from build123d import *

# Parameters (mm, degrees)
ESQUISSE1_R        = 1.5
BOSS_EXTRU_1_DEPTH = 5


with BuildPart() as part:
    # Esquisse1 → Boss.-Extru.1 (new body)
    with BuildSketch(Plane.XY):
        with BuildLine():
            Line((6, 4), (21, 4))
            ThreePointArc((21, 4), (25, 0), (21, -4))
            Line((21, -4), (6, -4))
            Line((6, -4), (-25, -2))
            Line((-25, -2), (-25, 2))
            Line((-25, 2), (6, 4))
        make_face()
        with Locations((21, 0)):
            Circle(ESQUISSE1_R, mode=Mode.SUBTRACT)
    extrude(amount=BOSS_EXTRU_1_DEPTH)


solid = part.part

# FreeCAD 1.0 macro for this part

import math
import FreeCAD as App
import Part
import Sketcher

doc = App.newDocument("Part")
params = doc.addObject("Spreadsheet::Sheet", "Params")
for row, (alias, value) in enumerate([
    ("sketch1_diameter", "3 mm"),
    ("sketch1_radius", "4 mm"),
    ("sketch1_width", "15 mm"),
    ("sketch1_height", "4 mm"),
    ("pad1_length", "5 mm"),
], start=1):
    params.set(f"A{row}", alias)
    params.set(f"B{row}", "=" + value)
    params.setAlias(f"B{row}", alias)

body = doc.addObject("PartDesign::Body", "Body")

# Sketch on XY plane
sketch1 = body.newObject("Sketcher::SketchObject", "Sketch")
sketch1.AttachmentSupport = (doc.getObject("XY_Plane"), [""])
sketch1.MapMode = "FlatFace"
sketch1.addGeometry(Part.LineSegment(App.Vector(21, 4, 0), App.Vector(6, 4, 0)), False)
sketch1.addGeometry(Part.LineSegment(App.Vector(6, 4, 0), App.Vector(-25, 2, 0)), False)
sketch1.addGeometry(Part.LineSegment(App.Vector(-25, 2, 0), App.Vector(-25, -2, 0)), False)
sketch1.addGeometry(Part.LineSegment(App.Vector(-25, -2, 0), App.Vector(6, -4, 0)), False)
sketch1.addGeometry(Part.LineSegment(App.Vector(6, -4, 0), App.Vector(21, -4, 0)), False)
sketch1.addGeometry(Part.ArcOfCircle(Part.Circle(App.Vector(21, 0, 0), App.Vector(0, 0, 1), 4), math.radians(-90), math.radians(90)), False)
sketch1.addGeometry(Part.Circle(App.Vector(21, 0, 0), App.Vector(0, 0, 1), 1.5), False)
sketch1.addConstraint(Sketcher.Constraint("Coincident", 0, 2, 1, 1))
sketch1.addConstraint(Sketcher.Constraint("Coincident", 1, 2, 2, 1))
sketch1.addConstraint(Sketcher.Constraint("Coincident", 2, 2, 3, 1))
sketch1.addConstraint(Sketcher.Constraint("Coincident", 3, 2, 4, 1))
sketch1.addConstraint(Sketcher.Constraint("Tangent", 4, 2, 5, 1))
sketch1.addConstraint(Sketcher.Constraint("Tangent", 5, 2, 0, 1))
sketch1.addConstraint(Sketcher.Constraint("Horizontal", 0))
sketch1.addConstraint(Sketcher.Constraint("Vertical", 2))
sketch1.addConstraint(Sketcher.Constraint("Horizontal", 4))
sketch1.addConstraint(Sketcher.Constraint("Coincident", 6, 3, 5, 3))
sketch1.addConstraint(Sketcher.Constraint("Symmetric", 0, 2, 3, 2, -1))
sketch1.addConstraint(Sketcher.Constraint("Equal", 1, 3))
sketch1.addConstraint(Sketcher.Constraint("Diameter", 6, 3.0))
sketch1.addConstraint(Sketcher.Constraint("Radius", 5, 4.0))
sketch1.addConstraint(Sketcher.Constraint("DistanceX", 0, 2, 0, 1, 15.0))
sketch1.addConstraint(Sketcher.Constraint("DistanceY", 2, 2, 2, 1, 4.0))
sketch1.addConstraint(Sketcher.Constraint("DistanceX", -1, 1, 5, 3, 21.0))
sketch1.addConstraint(Sketcher.Constraint("DistanceX", 1, 2, -1, 1, 25.0))
sketch1.setExpression("Constraints[12]", "Params.sketch1_diameter")
sketch1.setExpression("Constraints[13]", "Params.sketch1_radius")
sketch1.setExpression("Constraints[14]", "Params.sketch1_width")
sketch1.setExpression("Constraints[15]", "Params.sketch1_height")
pad1 = body.newObject("PartDesign::Pad", "Pad")
pad1.Profile = sketch1
pad1.setExpression("Length", "Params.pad1_length")

doc.recompute()
